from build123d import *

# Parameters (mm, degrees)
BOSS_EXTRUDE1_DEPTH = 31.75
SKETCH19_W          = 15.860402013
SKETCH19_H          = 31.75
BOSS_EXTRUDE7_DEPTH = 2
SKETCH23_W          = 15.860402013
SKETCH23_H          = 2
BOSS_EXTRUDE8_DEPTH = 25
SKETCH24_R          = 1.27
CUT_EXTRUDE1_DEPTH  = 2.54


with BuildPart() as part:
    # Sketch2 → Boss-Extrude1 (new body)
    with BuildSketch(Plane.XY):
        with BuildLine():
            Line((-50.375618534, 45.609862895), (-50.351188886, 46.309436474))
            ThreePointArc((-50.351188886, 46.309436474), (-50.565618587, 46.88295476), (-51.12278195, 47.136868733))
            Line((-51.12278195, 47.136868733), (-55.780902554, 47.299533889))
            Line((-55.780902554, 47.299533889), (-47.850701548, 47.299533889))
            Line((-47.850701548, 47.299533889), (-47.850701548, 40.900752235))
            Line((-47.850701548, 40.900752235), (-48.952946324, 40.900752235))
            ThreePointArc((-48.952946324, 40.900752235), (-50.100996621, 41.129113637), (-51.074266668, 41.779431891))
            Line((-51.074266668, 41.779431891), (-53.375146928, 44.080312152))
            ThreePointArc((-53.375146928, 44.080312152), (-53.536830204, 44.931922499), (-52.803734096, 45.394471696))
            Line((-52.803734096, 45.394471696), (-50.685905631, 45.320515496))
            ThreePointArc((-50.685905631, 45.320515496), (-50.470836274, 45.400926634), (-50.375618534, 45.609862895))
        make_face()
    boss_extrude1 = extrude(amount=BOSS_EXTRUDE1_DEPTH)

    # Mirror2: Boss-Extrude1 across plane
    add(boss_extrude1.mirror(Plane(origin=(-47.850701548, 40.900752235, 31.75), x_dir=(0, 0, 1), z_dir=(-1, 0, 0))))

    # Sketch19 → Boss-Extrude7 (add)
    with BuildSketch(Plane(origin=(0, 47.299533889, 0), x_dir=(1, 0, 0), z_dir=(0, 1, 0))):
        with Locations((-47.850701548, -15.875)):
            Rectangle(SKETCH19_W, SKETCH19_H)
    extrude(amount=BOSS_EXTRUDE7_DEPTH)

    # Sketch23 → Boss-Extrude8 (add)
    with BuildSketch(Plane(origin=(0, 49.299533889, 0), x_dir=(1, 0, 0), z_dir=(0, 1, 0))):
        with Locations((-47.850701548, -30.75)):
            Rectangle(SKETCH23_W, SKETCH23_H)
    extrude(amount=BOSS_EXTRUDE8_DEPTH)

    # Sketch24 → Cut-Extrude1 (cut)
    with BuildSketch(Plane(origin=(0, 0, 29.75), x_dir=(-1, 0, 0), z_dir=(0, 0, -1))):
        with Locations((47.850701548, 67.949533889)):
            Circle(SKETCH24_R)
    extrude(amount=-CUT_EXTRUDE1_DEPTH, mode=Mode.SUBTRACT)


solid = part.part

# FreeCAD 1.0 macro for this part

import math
import FreeCAD as App
import Part
import Sketcher
Q = App.Units.Quantity

doc = App.newDocument("Part")
body = doc.addObject("PartDesign::Body", "Body")

sketch1 = body.newObject("Sketcher::SketchObject", "Sketch")
sketch1.AttachmentSupport = (doc.getObject("XY_Plane"), [""])
sketch1.MapMode = "FlatFace"
sketch1.addGeometry([
    Part.LineSegment(App.Vector(-50.351189, 46.309436, 0), App.Vector(-50.375619, 45.609863, 0)),
    Part.ArcOfCircle(Part.Circle(App.Vector(-50.675436, 45.620333, 0), App.Vector(0, 0, 1), 0.3), math.radians(-92), math.radians(-2)),
    Part.LineSegment(App.Vector(-50.685906, 45.320515, 0), App.Vector(-52.803734, 45.394472, 0)),
    Part.ArcOfCircle(Part.Circle(App.Vector(-52.83061, 44.624849, 0), App.Vector(0, 0, 1), 0.770092), math.radians(88), math.radians(225)),
    Part.LineSegment(App.Vector(-53.375147, 44.080312, 0), App.Vector(-51.074267, 41.779432, 0)),
    Part.ArcOfCircle(Part.Circle(App.Vector(-48.952946, 43.900752, 0), App.Vector(0, 0, 1), 3), math.radians(-135), math.radians(-90)),
    Part.LineSegment(App.Vector(-48.952946, 40.900752, 0), App.Vector(-47.850702, 40.900752, 0)),
    Part.LineSegment(App.Vector(-47.850702, 40.900752, 0), App.Vector(-47.850702, 47.299534, 0)),
    Part.LineSegment(App.Vector(-47.850702, 47.299534, 0), App.Vector(-55.780903, 47.299534, 0)),
    Part.LineSegment(App.Vector(-55.780903, 47.299534, 0), App.Vector(-51.122782, 47.136869, 0)),
    Part.ArcOfCircle(Part.Circle(App.Vector(-51.150702, 46.337356, 0), App.Vector(0, 0, 1), 0.8), math.radians(-2), math.radians(88)),
], False)
sketch1.addConstraint([
    Sketcher.Constraint("Tangent", 0, 2, 1, 2),
    Sketcher.Constraint("Tangent", 1, 1, 2, 1),
    Sketcher.Constraint("Tangent", 2, 2, 3, 1),
    Sketcher.Constraint("Tangent", 3, 2, 4, 1),
    Sketcher.Constraint("Tangent", 4, 2, 5, 1),
    Sketcher.Constraint("Tangent", 5, 2, 6, 1),
    Sketcher.Constraint("Coincident", 6, 2, 7, 1),
    Sketcher.Constraint("Coincident", 7, 2, 8, 1),
    Sketcher.Constraint("Coincident", 8, 2, 9, 1),
    Sketcher.Constraint("Tangent", 9, 2, 10, 2),
    Sketcher.Constraint("Tangent", 10, 1, 0, 1),
    Sketcher.Constraint("Horizontal", 6),
    Sketcher.Constraint("Vertical", 7),
    Sketcher.Constraint("Horizontal", 8),
    Sketcher.Constraint("Perpendicular", 0, 2),
    Sketcher.Constraint("Parallel", 2, 9),
    Sketcher.Constraint("Radius", 5, Q("3 mm")),
    Sketcher.Constraint("Radius", 1, Q("0.3 mm")),
    Sketcher.Constraint("Radius", 10, Q("0.8 mm")),
    Sketcher.Constraint("Angle", 0, Q("-92 deg")),
    Sketcher.Constraint("Angle", 4, Q("-45 deg")),
    Sketcher.Constraint("Distance", 0, Q("0.7 mm")),
    Sketcher.Constraint("DistanceX", 10, 3, 7, 2, Q("3.3 mm")),
    Sketcher.Constraint("Radius", 3, Q("0.770092 mm")),
    Sketcher.Constraint("DistanceX", 8, 2, 8, 1, Q("7.930201 mm")),
    Sketcher.Constraint("DistanceY", 7, 1, 7, 2, Q("6.398782 mm")),
    Sketcher.Constraint("DistanceX", 10, 3, -1, 1, Q("51.150702 mm")),
    Sketcher.Constraint("DistanceX", 2, 2, 1, 3, Q("2.128298 mm")),
    Sketcher.Constraint("DistanceY", -1, 1, 3, 3, Q("44.624849 mm")),
])
pad1 = body.newObject("PartDesign::Pad", "Pad")
pad1.Profile = sketch1
pad1.Length = 31.75
doc.recompute()

datumplane = body.newObject("PartDesign::Plane", "DatumPlane")
datumplane.AttachmentSupport = (doc.getObject("YZ_Plane"), [""])
datumplane.MapMode = "FlatFace"
datumplane.AttachmentOffset = App.Placement(App.Vector(0, 0, -47.850702), App.Rotation())
mirrored = body.newObject("PartDesign::Mirrored", "Mirrored")
mirrored.Originals = [pad1]
mirrored.MirrorPlane = (datumplane, [""])
body.Tip = mirrored

sketch2 = body.newObject("Sketcher::SketchObject", "Sketch001")
sketch2.AttachmentSupport = (doc.getObject("XZ_Plane"), [""])
sketch2.MapMode = "FlatFace"
sketch2.AttachmentOffset = App.Placement(App.Vector(0, 0, -47.299534), App.Rotation())
sketch2.addGeometry([
    Part.LineSegment(App.Vector(-55.780903, 0, 0), App.Vector(-55.780903, 31.75, 0)),
    Part.LineSegment(App.Vector(-55.780903, 31.75, 0), App.Vector(-39.920501, 31.75, 0)),
    Part.LineSegment(App.Vector(-39.920501, 31.75, 0), App.Vector(-39.920501, 0, 0)),
    Part.LineSegment(App.Vector(-39.920501, 0, 0), App.Vector(-55.780903, 0, 0)),
], False)
sketch2.addConstraint([
    Sketcher.Constraint("Coincident", 0, 2, 1, 1),
    Sketcher.Constraint("Coincident", 1, 2, 2, 1),
    Sketcher.Constraint("Coincident", 2, 2, 3, 1),
    Sketcher.Constraint("Coincident", 3, 2, 0, 1),
    Sketcher.Constraint("Vertical", 0),
    Sketcher.Constraint("Horizontal", 1),
    Sketcher.Constraint("Vertical", 2),
    Sketcher.Constraint("Horizontal", 3),
    Sketcher.Constraint("PointOnObject", 2, 2, -1),
    Sketcher.Constraint("DistanceY", 0, 1, 0, 2, Q("31.75 mm")),
    Sketcher.Constraint("DistanceX", 1, 2, -1, 1, Q("39.920501 mm")),
    Sketcher.Constraint("DistanceX", 1, 1, 1, 2, Q("15.860402 mm")),
])
pad2 = body.newObject("PartDesign::Pad", "Pad001")
pad2.Profile = sketch2
pad2.Length = 2
pad2.Reversed = True

sketch3 = body.newObject("Sketcher::SketchObject", "Sketch002")
sketch3.AttachmentSupport = (doc.getObject("XZ_Plane"), [""])
sketch3.MapMode = "FlatFace"
sketch3.AttachmentOffset = App.Placement(App.Vector(0, 0, -49.299534), App.Rotation())
sketch3.addGeometry([
    Part.LineSegment(App.Vector(-55.780903, 29.75, 0), App.Vector(-55.780903, 31.75, 0)),
    Part.LineSegment(App.Vector(-55.780903, 31.75, 0), App.Vector(-39.920501, 31.75, 0)),
    Part.LineSegment(App.Vector(-39.920501, 31.75, 0), App.Vector(-39.920501, 29.75, 0)),
    Part.LineSegment(App.Vector(-39.920501, 29.75, 0), App.Vector(-55.780903, 29.75, 0)),
], False)
sketch3.addConstraint([
    Sketcher.Constraint("Coincident", 0, 2, 1, 1),
    Sketcher.Constraint("Coincident", 1, 2, 2, 1),
    Sketcher.Constraint("Coincident", 2, 2, 3, 1),
    Sketcher.Constraint("Coincident", 3, 2, 0, 1),
    Sketcher.Constraint("Vertical", 0),
    Sketcher.Constraint("Horizontal", 1),
    Sketcher.Constraint("Vertical", 2),
    Sketcher.Constraint("Horizontal", 3),
    Sketcher.Constraint("DistanceY", 0, 1, 0, 2, Q("2 mm")),
    Sketcher.Constraint("DistanceY", -1, 1, 0, 2, Q("31.75 mm")),
    Sketcher.Constraint("DistanceX", 1, 2, -1, 1, Q("39.920501 mm")),
    Sketcher.Constraint("DistanceX", 1, 1, 1, 2, Q("15.860402 mm")),
])
pad3 = body.newObject("PartDesign::Pad", "Pad002")
pad3.Profile = sketch3
pad3.Length = 25
pad3.Reversed = True

sketch4 = body.newObject("Sketcher::SketchObject", "Sketch003")
sketch4.AttachmentSupport = (doc.getObject("XY_Plane"), [""])
sketch4.MapMode = "FlatFace"
sketch4.AttachmentOffset = App.Placement(App.Vector(0, 0, 29.75), App.Rotation())
sketch4.addGeometry(Part.Circle(App.Vector(-47.850702, 67.949534, 0), App.Vector(0, 0, 1), 1.27), False)
sketch4.addConstraint([
    Sketcher.Constraint("Diameter", 0, Q("2.54 mm")),
    Sketcher.Constraint("DistanceX", 0, 3, -1, 1, Q("47.850702 mm")),
    Sketcher.Constraint("DistanceY", -1, 1, 0, 3, Q("67.949534 mm")),
])
pocket1 = body.newObject("PartDesign::Pocket", "Pocket")
pocket1.Profile = sketch4
pocket1.Length = 2.54
pocket1.Reversed = True

doc.recompute()
